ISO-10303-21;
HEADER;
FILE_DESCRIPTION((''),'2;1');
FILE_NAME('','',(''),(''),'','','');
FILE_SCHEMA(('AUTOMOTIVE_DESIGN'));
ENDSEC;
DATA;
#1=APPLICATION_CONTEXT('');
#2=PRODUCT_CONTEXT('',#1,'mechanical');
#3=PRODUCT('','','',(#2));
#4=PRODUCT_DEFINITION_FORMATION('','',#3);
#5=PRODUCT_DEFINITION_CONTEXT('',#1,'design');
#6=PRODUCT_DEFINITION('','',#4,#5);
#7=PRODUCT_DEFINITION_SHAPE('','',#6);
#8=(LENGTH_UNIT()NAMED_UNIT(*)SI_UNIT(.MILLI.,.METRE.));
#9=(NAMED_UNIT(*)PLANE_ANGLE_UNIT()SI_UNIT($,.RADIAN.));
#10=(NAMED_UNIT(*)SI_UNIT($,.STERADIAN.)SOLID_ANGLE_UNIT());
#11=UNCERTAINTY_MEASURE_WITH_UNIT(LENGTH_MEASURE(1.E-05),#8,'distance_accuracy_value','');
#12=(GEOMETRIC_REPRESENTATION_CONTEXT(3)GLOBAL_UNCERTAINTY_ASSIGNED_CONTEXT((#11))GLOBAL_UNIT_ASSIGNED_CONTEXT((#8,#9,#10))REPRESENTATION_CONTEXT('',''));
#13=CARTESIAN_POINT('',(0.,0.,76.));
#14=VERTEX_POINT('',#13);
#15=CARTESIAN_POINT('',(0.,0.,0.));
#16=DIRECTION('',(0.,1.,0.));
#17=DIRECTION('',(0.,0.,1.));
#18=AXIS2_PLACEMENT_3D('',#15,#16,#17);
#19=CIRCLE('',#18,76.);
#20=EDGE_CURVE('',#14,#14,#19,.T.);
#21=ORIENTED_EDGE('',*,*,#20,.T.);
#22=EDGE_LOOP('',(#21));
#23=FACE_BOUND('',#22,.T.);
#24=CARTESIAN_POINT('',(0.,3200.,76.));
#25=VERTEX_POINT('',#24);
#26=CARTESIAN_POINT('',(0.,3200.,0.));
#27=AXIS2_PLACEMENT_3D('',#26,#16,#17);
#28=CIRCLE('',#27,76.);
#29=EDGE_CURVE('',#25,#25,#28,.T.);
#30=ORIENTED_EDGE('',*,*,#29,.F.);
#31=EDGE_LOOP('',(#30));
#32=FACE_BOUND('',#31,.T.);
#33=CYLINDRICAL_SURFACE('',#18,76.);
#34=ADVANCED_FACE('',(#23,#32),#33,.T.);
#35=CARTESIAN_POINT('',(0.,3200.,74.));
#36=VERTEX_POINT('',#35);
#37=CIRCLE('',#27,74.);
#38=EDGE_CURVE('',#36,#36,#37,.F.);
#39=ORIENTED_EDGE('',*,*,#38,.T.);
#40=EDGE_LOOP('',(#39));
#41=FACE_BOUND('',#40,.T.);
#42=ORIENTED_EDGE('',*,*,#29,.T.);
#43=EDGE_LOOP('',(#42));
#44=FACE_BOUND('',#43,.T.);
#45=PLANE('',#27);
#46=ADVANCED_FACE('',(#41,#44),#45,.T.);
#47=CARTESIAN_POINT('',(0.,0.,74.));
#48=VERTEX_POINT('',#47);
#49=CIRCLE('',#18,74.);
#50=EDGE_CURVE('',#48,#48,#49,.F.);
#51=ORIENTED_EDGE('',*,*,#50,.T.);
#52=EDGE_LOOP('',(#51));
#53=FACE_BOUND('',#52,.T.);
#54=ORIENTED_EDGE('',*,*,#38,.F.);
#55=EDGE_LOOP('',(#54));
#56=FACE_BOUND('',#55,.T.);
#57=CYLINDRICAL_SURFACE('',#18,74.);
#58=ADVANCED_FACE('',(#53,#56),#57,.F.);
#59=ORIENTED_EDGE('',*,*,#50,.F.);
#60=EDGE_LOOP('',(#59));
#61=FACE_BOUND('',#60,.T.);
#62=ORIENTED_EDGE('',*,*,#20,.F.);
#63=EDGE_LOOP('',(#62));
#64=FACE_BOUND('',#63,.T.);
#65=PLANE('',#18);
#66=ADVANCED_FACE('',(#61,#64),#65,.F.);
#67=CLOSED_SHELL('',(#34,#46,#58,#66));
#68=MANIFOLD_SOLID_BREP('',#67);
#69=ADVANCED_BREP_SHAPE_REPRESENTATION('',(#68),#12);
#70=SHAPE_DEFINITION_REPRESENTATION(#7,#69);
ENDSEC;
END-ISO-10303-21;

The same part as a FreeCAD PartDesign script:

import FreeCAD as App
import Part
import Sketcher

doc = App.newDocument("Part")
params = doc.addObject("Spreadsheet::Sheet", "Params")
for row, (alias, value) in enumerate([
    ("sketch1_diameter", "152 mm"),
    ("sketch1_diameter2", "148 mm"),
    ("sketch2_height", "3200 mm"),
], start=1):
    params.set(f"A{row}", alias)
    params.set(f"B{row}", "=" + value)
    params.setAlias(f"B{row}", alias)

body = doc.addObject("PartDesign::Body", "Body")

sketch1 = body.newObject("Sketcher::SketchObject", "Sketch")
sketch1.AttachmentSupport = (doc.getObject("XZ_Plane"), [""])
sketch1.MapMode = "FlatFace"
sketch1.addGeometry([
    Part.Circle(App.Vector(0, 0, 0), App.Vector(0, 0, 1), 76),
    Part.Circle(App.Vector(0, 0, 0), App.Vector(0, 0, 1), 74),
], False)
sketch1.addConstraint([
    Sketcher.Constraint("Coincident", 0, 3, -1, 1),
    Sketcher.Constraint("Coincident", 1, 3, -1, 1),
    Sketcher.Constraint("Diameter", 0, 152.0),
    Sketcher.Constraint("Diameter", 1, 148.0),
])
sketch1.setExpression("Constraints[2]", "Params.sketch1_diameter")
sketch1.setExpression("Constraints[3]", "Params.sketch1_diameter2")

sketch2 = body.newObject("Sketcher::SketchObject", "Sketch001")
sketch2.AttachmentSupport = (doc.getObject("XY_Plane"), [""])
sketch2.MapMode = "FlatFace"
sketch2.addGeometry(Part.LineSegment(App.Vector(0, 0, 0), App.Vector(0, 3200, 0)), False)
sketch2.addConstraint([
    Sketcher.Constraint("Vertical", 0),
    Sketcher.Constraint("Coincident", 0, 1, -1, 1),
    Sketcher.Constraint("DistanceY", 0, 1, 0, 2, 3200.0),
])
sketch2.setExpression("Constraints[2]", "Params.sketch2_height")
doc.recompute()

additivepipe = body.newObject("PartDesign::AdditivePipe", "AdditivePipe")
additivepipe.Profile = sketch1
additivepipe.Spine = (sketch2, ["Edge1"])

doc.recompute()
